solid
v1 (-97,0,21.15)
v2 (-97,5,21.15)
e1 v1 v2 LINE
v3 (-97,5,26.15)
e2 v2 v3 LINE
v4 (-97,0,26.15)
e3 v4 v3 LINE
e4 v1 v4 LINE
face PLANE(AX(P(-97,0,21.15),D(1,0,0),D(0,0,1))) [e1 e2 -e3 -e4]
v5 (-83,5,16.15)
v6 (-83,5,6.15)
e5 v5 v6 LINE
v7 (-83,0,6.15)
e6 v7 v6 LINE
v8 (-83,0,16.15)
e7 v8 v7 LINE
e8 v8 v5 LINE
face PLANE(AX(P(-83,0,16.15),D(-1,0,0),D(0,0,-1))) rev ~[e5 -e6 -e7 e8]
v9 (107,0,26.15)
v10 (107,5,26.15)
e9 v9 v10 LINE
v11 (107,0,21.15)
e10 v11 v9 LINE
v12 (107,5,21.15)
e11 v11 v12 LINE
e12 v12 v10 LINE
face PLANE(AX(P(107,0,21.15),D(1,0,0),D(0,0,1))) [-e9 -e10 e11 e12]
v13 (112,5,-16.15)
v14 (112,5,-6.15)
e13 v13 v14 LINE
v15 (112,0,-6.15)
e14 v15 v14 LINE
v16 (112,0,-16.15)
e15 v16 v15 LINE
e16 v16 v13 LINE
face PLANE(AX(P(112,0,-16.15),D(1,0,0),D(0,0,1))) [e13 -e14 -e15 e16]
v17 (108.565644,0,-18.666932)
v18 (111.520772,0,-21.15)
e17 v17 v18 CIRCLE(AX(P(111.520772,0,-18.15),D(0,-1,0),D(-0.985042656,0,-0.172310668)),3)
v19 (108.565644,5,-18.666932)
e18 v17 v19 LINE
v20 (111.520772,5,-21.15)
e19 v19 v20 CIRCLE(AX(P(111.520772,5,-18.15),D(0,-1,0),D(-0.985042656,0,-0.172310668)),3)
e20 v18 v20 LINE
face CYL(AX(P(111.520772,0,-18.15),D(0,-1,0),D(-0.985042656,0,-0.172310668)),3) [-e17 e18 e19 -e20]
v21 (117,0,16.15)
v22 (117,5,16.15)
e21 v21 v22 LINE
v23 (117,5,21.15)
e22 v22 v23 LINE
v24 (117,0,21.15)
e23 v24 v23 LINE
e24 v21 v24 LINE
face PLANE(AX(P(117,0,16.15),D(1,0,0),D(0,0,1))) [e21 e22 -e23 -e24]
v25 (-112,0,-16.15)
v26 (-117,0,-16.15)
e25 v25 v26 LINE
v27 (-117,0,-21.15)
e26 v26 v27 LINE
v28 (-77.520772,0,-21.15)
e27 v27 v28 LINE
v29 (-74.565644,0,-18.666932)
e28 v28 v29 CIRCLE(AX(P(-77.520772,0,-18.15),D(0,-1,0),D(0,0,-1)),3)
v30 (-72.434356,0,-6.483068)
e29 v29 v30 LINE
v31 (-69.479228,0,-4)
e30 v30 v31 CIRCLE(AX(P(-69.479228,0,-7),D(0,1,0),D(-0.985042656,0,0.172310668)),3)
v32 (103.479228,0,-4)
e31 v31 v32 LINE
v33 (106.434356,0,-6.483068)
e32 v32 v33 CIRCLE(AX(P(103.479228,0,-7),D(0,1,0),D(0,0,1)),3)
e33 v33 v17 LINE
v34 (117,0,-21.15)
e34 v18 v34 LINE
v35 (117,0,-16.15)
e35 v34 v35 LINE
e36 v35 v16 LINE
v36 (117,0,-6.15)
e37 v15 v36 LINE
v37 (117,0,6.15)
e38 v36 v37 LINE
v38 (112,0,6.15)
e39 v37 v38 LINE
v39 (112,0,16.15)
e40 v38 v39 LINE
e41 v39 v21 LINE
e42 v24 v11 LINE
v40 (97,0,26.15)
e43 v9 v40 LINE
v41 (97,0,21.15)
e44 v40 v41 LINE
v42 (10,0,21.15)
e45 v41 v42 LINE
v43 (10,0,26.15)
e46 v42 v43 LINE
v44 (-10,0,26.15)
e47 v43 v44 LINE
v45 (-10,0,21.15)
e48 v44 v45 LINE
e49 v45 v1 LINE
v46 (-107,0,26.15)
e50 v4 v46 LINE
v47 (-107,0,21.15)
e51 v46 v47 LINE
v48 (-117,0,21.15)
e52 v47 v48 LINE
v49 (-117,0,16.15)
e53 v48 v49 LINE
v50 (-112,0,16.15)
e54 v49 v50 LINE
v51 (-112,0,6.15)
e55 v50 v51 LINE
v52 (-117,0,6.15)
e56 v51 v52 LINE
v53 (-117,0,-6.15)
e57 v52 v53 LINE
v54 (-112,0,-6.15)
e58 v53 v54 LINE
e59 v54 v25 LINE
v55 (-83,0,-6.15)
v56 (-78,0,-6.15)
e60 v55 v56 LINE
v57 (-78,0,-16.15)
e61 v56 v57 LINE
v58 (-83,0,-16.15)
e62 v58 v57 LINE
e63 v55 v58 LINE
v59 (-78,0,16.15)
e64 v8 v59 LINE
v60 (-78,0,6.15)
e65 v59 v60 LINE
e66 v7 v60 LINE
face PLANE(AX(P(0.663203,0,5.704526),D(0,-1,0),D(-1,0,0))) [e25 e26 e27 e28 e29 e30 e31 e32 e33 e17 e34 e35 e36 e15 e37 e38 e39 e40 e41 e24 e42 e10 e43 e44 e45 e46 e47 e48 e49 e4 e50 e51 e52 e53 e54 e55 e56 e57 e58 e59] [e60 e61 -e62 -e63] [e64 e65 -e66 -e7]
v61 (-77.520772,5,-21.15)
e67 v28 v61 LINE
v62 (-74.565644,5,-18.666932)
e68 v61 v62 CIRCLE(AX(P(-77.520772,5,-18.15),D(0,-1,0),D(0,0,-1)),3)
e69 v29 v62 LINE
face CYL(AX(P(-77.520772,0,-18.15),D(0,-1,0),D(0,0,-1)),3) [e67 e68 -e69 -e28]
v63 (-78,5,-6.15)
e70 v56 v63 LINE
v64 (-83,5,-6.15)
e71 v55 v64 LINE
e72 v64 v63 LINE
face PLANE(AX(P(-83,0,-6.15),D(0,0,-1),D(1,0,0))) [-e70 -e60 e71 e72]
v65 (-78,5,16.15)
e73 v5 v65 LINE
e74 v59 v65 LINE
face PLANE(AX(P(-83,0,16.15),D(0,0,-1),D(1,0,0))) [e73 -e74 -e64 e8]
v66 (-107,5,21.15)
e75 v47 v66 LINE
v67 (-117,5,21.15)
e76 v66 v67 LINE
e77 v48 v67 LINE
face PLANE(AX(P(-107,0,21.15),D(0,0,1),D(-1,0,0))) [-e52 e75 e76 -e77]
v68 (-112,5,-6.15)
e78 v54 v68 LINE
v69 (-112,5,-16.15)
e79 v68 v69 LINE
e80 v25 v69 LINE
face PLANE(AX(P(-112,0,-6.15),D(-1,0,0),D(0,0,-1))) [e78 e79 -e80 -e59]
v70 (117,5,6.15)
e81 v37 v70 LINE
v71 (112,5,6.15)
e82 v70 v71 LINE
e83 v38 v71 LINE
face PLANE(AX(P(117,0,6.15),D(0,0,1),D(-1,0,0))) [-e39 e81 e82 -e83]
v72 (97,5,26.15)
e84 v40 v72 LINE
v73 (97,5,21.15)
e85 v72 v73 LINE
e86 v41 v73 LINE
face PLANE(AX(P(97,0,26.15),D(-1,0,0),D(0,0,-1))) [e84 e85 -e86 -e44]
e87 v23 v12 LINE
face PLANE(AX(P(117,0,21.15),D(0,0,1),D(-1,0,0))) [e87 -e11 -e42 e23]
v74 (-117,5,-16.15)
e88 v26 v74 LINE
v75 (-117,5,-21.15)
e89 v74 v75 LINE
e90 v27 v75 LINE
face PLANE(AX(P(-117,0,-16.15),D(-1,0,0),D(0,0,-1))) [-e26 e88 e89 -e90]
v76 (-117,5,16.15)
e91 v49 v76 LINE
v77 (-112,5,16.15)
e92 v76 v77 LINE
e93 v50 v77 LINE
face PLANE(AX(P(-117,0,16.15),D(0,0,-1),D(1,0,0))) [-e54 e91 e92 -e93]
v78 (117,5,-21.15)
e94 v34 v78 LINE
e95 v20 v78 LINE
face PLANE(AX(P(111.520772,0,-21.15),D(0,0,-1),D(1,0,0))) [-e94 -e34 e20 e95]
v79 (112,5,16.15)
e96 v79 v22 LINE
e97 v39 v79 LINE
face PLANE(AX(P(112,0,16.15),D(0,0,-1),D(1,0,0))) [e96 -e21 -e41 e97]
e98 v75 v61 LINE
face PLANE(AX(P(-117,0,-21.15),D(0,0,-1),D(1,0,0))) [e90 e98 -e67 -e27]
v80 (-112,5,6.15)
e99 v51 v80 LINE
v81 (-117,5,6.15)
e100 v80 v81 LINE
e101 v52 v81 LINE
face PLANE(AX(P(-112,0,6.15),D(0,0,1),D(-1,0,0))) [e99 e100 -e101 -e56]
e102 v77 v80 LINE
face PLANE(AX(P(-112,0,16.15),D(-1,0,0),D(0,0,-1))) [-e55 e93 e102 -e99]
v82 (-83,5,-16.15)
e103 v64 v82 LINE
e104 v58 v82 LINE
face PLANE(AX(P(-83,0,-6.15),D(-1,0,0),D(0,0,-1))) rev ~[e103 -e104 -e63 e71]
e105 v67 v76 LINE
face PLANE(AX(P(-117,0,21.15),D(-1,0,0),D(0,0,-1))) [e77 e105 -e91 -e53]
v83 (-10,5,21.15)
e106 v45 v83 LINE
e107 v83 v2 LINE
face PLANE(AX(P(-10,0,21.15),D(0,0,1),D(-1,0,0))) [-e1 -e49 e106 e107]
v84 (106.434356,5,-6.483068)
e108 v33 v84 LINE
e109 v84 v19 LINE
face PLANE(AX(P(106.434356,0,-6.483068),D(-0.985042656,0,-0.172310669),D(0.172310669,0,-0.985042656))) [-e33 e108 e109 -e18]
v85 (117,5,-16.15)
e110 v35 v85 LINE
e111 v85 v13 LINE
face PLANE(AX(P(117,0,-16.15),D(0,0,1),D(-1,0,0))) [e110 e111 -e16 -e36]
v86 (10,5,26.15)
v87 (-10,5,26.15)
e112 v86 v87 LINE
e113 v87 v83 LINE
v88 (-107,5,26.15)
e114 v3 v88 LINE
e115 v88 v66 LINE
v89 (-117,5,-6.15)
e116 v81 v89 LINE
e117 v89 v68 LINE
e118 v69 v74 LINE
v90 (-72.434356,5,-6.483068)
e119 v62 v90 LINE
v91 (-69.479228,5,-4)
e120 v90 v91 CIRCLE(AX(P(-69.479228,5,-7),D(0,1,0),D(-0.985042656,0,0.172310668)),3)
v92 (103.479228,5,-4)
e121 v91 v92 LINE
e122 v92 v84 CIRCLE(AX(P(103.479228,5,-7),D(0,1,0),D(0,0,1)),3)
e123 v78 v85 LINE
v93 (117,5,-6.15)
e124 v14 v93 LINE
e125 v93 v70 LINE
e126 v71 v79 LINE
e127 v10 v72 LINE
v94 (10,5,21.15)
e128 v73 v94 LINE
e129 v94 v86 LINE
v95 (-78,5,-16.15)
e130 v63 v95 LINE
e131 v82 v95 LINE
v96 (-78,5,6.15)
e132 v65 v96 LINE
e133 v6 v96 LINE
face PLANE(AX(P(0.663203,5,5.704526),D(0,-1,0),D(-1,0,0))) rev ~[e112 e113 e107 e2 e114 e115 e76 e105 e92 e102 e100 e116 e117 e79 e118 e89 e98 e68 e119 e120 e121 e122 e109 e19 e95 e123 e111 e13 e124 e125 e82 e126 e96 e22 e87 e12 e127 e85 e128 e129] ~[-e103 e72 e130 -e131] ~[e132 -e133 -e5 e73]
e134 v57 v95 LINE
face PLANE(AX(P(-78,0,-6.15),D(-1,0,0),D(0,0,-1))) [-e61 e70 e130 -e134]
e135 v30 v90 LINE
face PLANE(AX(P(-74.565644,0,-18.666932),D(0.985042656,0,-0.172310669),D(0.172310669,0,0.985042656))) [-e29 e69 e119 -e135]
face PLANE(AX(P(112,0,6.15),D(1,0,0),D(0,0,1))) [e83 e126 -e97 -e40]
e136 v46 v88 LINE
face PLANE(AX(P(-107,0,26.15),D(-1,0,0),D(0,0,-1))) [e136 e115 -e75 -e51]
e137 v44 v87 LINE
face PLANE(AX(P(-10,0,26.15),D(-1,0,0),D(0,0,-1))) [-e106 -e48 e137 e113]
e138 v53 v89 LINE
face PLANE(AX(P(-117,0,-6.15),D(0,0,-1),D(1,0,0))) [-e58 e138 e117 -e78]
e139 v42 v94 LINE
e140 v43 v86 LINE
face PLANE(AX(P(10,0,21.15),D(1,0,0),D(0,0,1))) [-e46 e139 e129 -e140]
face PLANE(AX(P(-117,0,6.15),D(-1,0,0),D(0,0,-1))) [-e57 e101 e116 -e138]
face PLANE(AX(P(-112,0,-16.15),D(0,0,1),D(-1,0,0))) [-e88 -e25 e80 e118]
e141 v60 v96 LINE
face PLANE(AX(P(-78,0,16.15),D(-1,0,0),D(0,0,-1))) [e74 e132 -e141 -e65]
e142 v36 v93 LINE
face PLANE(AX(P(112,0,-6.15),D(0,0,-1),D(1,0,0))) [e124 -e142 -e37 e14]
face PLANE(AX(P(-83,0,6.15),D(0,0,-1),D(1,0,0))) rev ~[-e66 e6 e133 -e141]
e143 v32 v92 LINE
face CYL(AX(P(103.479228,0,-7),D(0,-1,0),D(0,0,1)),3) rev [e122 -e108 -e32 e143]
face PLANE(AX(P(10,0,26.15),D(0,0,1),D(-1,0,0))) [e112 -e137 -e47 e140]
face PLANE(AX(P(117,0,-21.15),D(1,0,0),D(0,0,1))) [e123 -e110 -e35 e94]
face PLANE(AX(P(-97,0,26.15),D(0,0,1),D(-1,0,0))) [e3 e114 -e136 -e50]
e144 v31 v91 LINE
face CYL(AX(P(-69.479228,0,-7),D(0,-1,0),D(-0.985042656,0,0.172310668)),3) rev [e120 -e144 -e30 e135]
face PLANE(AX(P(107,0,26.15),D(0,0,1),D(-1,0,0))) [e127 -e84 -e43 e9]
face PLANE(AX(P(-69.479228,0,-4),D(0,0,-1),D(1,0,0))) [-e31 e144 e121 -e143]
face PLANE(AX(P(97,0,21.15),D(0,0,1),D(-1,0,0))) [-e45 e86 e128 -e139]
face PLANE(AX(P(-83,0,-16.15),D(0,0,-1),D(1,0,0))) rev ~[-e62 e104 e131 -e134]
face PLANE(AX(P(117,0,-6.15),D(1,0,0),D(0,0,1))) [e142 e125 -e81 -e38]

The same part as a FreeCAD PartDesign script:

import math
import FreeCAD as App
import Part
import Sketcher
from FreeCAD import Vector

doc = App.newDocument("Part")
params = doc.addObject("Spreadsheet::Sheet", "Params")
for row, (alias, value) in enumerate([
    ("sketch1_radius", "3 mm"),
    ("sketch1_width", "5 mm"),
    ("sketch1_width2", "10 mm"),
    ("sketch1_width3", "87 mm"),
    ("sketch1_width4", "20 mm"),
    ("pad1_length", "5 mm"),
], start=1):
    params.set(f"A{row}", alias)
    params.set(f"B{row}", "=" + value)
    params.setAlias(f"B{row}", alias)

body = doc.addObject("PartDesign::Body", "Body")

# Sketch on XZ plane
sketch1 = body.newObject("Sketcher::SketchObject", "Sketch")
sketch1.AttachmentSupport = (doc.getObject("XZ_Plane"), [""])
sketch1.MapMode = "FlatFace"
sketch1.addGeometry([
    Part.LineSegment(Vector(-77.5, -21.1, 0), Vector(-117, -21.1, 0)),  # 0
    Part.LineSegment(Vector(-117, -21.1, 0), Vector(-117, -16.1, 0)),  # 1
    Part.LineSegment(Vector(-117, -16.1, 0), Vector(-112, -16.1, 0)),  # 2
    Part.LineSegment(Vector(-112, -16.1, 0), Vector(-112, -6.2, 0)),  # 3
    Part.LineSegment(Vector(-112, -6.2, 0), Vector(-117, -6.2, 0)),  # 4
    Part.LineSegment(Vector(-117, -6.2, 0), Vector(-117, 6.2, 0)),  # 5
    Part.LineSegment(Vector(-117, 6.2, 0), Vector(-112, 6.2, 0)),  # 6
    Part.LineSegment(Vector(-112, 6.2, 0), Vector(-112, 16.1, 0)),  # 7
    Part.LineSegment(Vector(-112, 16.1, 0), Vector(-117, 16.1, 0)),  # 8
    Part.LineSegment(Vector(-117, 16.1, 0), Vector(-117, 21.1, 0)),  # 9
    Part.LineSegment(Vector(-117, 21.1, 0), Vector(-107, 21.1, 0)),  # 10
    Part.LineSegment(Vector(-107, 21.1, 0), Vector(-107, 26.1, 0)),  # 11
    Part.LineSegment(Vector(-107, 26.1, 0), Vector(-97, 26.1, 0)),  # 12
    Part.LineSegment(Vector(-97, 26.1, 0), Vector(-97, 21.1, 0)),  # 13
    Part.LineSegment(Vector(-97, 21.1, 0), Vector(-10, 21.1, 0)),  # 14
    Part.LineSegment(Vector(-10, 21.1, 0), Vector(-10, 26.1, 0)),  # 15
    Part.LineSegment(Vector(-10, 26.1, 0), Vector(10, 26.1, 0)),  # 16
    Part.LineSegment(Vector(10, 26.1, 0), Vector(10, 21.1, 0)),  # 17
    Part.LineSegment(Vector(10, 21.1, 0), Vector(97, 21.1, 0)),  # 18
    Part.LineSegment(Vector(97, 21.1, 0), Vector(97, 26.1, 0)),  # 19
    Part.LineSegment(Vector(97, 26.1, 0), Vector(107, 26.1, 0)),  # 20
    Part.LineSegment(Vector(107, 26.1, 0), Vector(107, 21.1, 0)),  # 21
    Part.LineSegment(Vector(107, 21.1, 0), Vector(117, 21.1, 0)),  # 22
    Part.LineSegment(Vector(117, 21.1, 0), Vector(117, 16.1, 0)),  # 23
    Part.LineSegment(Vector(117, 16.1, 0), Vector(112, 16.1, 0)),  # 24
    Part.LineSegment(Vector(112, 16.1, 0), Vector(112, 6.2, 0)),  # 25
    Part.LineSegment(Vector(112, 6.2, 0), Vector(117, 6.2, 0)),  # 26
    Part.LineSegment(Vector(117, 6.2, 0), Vector(117, -6.2, 0)),  # 27
    Part.LineSegment(Vector(117, -6.2, 0), Vector(112, -6.2, 0)),  # 28
    Part.LineSegment(Vector(112, -6.2, 0), Vector(112, -16.1, 0)),  # 29
    Part.LineSegment(Vector(112, -16.1, 0), Vector(117, -16.1, 0)),  # 30
    Part.LineSegment(Vector(117, -16.1, 0), Vector(117, -21.1, 0)),  # 31
    Part.LineSegment(Vector(117, -21.1, 0), Vector(111.5, -21.1, 0)),  # 32
    Part.ArcOfCircle(Part.Circle(Vector(111.5, -18.2, 0), Vector(0, 0, 1), 3), math.radians(-170), math.radians(-90)),  # 33
    Part.LineSegment(Vector(108.6, -18.7, 0), Vector(106.4, -6.5, 0)),  # 34
    Part.ArcOfCircle(Part.Circle(Vector(103.5, -7, 0), Vector(0, 0, 1), 3), math.radians(10), math.radians(90)),  # 35
    Part.LineSegment(Vector(103.5, -4, 0), Vector(-69.5, -4, 0)),  # 36
    Part.ArcOfCircle(Part.Circle(Vector(-69.5, -7, 0), Vector(0, 0, 1), 3), math.radians(90), math.radians(170)),  # 37
    Part.LineSegment(Vector(-72.4, -6.5, 0), Vector(-74.6, -18.7, 0)),  # 38
    Part.ArcOfCircle(Part.Circle(Vector(-77.5, -18.2, 0), Vector(0, 0, 1), 3), math.radians(-90), math.radians(-10)),  # 39
    Part.LineSegment(Vector(-83, 16.1, 0), Vector(-83, 6.2, 0)),  # 40
    Part.LineSegment(Vector(-83, 6.2, 0), Vector(-78, 6.2, 0)),  # 41
    Part.LineSegment(Vector(-78, 6.2, 0), Vector(-78, 16.1, 0)),  # 42
    Part.LineSegment(Vector(-78, 16.1, 0), Vector(-83, 16.1, 0)),  # 43
    Part.LineSegment(Vector(-83, -6.2, 0), Vector(-83, -16.1, 0)),  # 44
    Part.LineSegment(Vector(-83, -16.1, 0), Vector(-78, -16.1, 0)),  # 45
    Part.LineSegment(Vector(-78, -16.1, 0), Vector(-78, -6.2, 0)),  # 46
    Part.LineSegment(Vector(-78, -6.2, 0), Vector(-83, -6.2, 0)),  # 47
], False)
sketch1.addConstraint([
    Sketcher.Constraint("Coincident", 0, 2, 1, 1),
    Sketcher.Constraint("Coincident", 1, 2, 2, 1),
    Sketcher.Constraint("Coincident", 2, 2, 3, 1),
    Sketcher.Constraint("Coincident", 3, 2, 4, 1),
    Sketcher.Constraint("Coincident", 4, 2, 5, 1),
    Sketcher.Constraint("Coincident", 5, 2, 6, 1),
    Sketcher.Constraint("Coincident", 6, 2, 7, 1),
    Sketcher.Constraint("Coincident", 7, 2, 8, 1),
    Sketcher.Constraint("Coincident", 8, 2, 9, 1),
    Sketcher.Constraint("Coincident", 9, 2, 10, 1),
    Sketcher.Constraint("Coincident", 10, 2, 11, 1),
    Sketcher.Constraint("Coincident", 11, 2, 12, 1),
    Sketcher.Constraint("Coincident", 12, 2, 13, 1),
    Sketcher.Constraint("Coincident", 13, 2, 14, 1),
    Sketcher.Constraint("Coincident", 14, 2, 15, 1),
    Sketcher.Constraint("Coincident", 15, 2, 16, 1),
    Sketcher.Constraint("Coincident", 16, 2, 17, 1),
    Sketcher.Constraint("Coincident", 17, 2, 18, 1),
    Sketcher.Constraint("Coincident", 18, 2, 19, 1),
    Sketcher.Constraint("Coincident", 19, 2, 20, 1),
    Sketcher.Constraint("Coincident", 20, 2, 21, 1),
    Sketcher.Constraint("Coincident", 21, 2, 22, 1),
    Sketcher.Constraint("Coincident", 22, 2, 23, 1),
    Sketcher.Constraint("Coincident", 23, 2, 24, 1),
    Sketcher.Constraint("Coincident", 24, 2, 25, 1),
    Sketcher.Constraint("Coincident", 25, 2, 26, 1),
    Sketcher.Constraint("Coincident", 26, 2, 27, 1),
    Sketcher.Constraint("Coincident", 27, 2, 28, 1),
    Sketcher.Constraint("Coincident", 28, 2, 29, 1),
    Sketcher.Constraint("Coincident", 29, 2, 30, 1),
    Sketcher.Constraint("Coincident", 30, 2, 31, 1),
    Sketcher.Constraint("Coincident", 31, 2, 32, 1),
    Sketcher.Constraint("Tangent", 32, 2, 33, 2),
    Sketcher.Constraint("Tangent", 33, 1, 34, 1),
    Sketcher.Constraint("Tangent", 34, 2, 35, 1),
    Sketcher.Constraint("Tangent", 35, 2, 36, 1),
    Sketcher.Constraint("Tangent", 36, 2, 37, 1),
    Sketcher.Constraint("Tangent", 37, 2, 38, 1),
    Sketcher.Constraint("Tangent", 38, 2, 39, 2),
    Sketcher.Constraint("Tangent", 39, 1, 0, 1),
    Sketcher.Constraint("Coincident", 40, 2, 41, 1),
    Sketcher.Constraint("Coincident", 41, 2, 42, 1),
    Sketcher.Constraint("Coincident", 42, 2, 43, 1),
    Sketcher.Constraint("Coincident", 43, 2, 40, 1),
    Sketcher.Constraint("Coincident", 44, 2, 45, 1),
    Sketcher.Constraint("Coincident", 45, 2, 46, 1),
    Sketcher.Constraint("Coincident", 46, 2, 47, 1),
    Sketcher.Constraint("Coincident", 47, 2, 44, 1),
    Sketcher.Constraint("Horizontal", 0),
    Sketcher.Constraint("Vertical", 1),
    Sketcher.Constraint("Horizontal", 2),
    Sketcher.Constraint("Vertical", 3),
    Sketcher.Constraint("Horizontal", 4),
    Sketcher.Constraint("Vertical", 5),
    Sketcher.Constraint("Horizontal", 6),
    Sketcher.Constraint("Vertical", 7),
    Sketcher.Constraint("Horizontal", 8),
    Sketcher.Constraint("Vertical", 9),
    Sketcher.Constraint("Horizontal", 10),
    Sketcher.Constraint("Vertical", 11),
    Sketcher.Constraint("Horizontal", 12),
    Sketcher.Constraint("Vertical", 13),
    Sketcher.Constraint("Horizontal", 14),
    Sketcher.Constraint("Vertical", 15),
    Sketcher.Constraint("Horizontal", 16),
    Sketcher.Constraint("Vertical", 17),
    Sketcher.Constraint("Horizontal", 18),
    Sketcher.Constraint("Vertical", 19),
    Sketcher.Constraint("Horizontal", 20),
    Sketcher.Constraint("Vertical", 21),
    Sketcher.Constraint("Horizontal", 22),
    Sketcher.Constraint("Vertical", 23),
    Sketcher.Constraint("Horizontal", 24),
    Sketcher.Constraint("Vertical", 25),
    Sketcher.Constraint("Horizontal", 26),
    Sketcher.Constraint("Vertical", 27),
    Sketcher.Constraint("Horizontal", 28),
    Sketcher.Constraint("Vertical", 29),
    Sketcher.Constraint("Horizontal", 30),
    Sketcher.Constraint("Vertical", 31),
    Sketcher.Constraint("Horizontal", 32),
    Sketcher.Constraint("Horizontal", 36),
    Sketcher.Constraint("Vertical", 40),
    Sketcher.Constraint("Horizontal", 41),
    Sketcher.Constraint("Vertical", 42),
    Sketcher.Constraint("Horizontal", 43),
    Sketcher.Constraint("Vertical", 44),
    Sketcher.Constraint("Horizontal", 45),
    Sketcher.Constraint("Vertical", 46),
    Sketcher.Constraint("Horizontal", 47),
    Sketcher.Constraint("Equal", 33, 35),
    Sketcher.Constraint("Equal", 35, 37),
    Sketcher.Constraint("Equal", 37, 39),
    Sketcher.Constraint("Symmetric", 0, 2, 22, 2, -1, 1),
    Sketcher.Constraint("Symmetric", 2, 2, 24, 2, -1, 1),
    Sketcher.Constraint("Symmetric", 4, 2, 26, 2, -1, 1),
    Sketcher.Constraint("Symmetric", 6, 2, 28, 2, -1, 1),
    Sketcher.Constraint("Symmetric", 8, 2, 30, 2, -1, 1),
    Sketcher.Constraint("Symmetric", 14, 2, 17, 2, -2),
    Sketcher.Constraint("Symmetric", 12, 2, 19, 2, -2),
    Sketcher.Constraint("Symmetric", 10, 2, 21, 2, -2),
    Sketcher.Constraint("Symmetric", 8, 2, 23, 2, -2),
    Sketcher.Constraint("Symmetric", 6, 2, 25, 2, -2),
    Sketcher.Constraint("Symmetric", 43, 2, 44, 2, -1),
    Sketcher.Constraint("Symmetric", 41, 2, 46, 2, -1),
    Sketcher.Constraint("Horizontal", 33, 3, 39, 3),
    Sketcher.Constraint("Horizontal", 10, 2, 13, 2),
    Sketcher.Constraint("Horizontal", 12, 2, 15, 2),
    Sketcher.Constraint("Horizontal", 34, 2, 37, 2),
    Sketcher.Constraint("Horizontal", 26, 2, 40, 2),
    Sketcher.Constraint("Horizontal", 24, 2, 42, 2),
    Sketcher.Constraint("Vertical", 1, 2, 4, 2),
    Sketcher.Constraint("Equal", 10, 12),
    Sketcher.Constraint("Equal", 30, 41),
    Sketcher.Constraint("Equal", 47, 1),
    Sketcher.Constraint("Equal", 22, 3),
    Sketcher.Constraint("Equal", 9, 11),
    Sketcher.Constraint("Radius", 33, 3.0),
    Sketcher.Constraint("DistanceX", 2, 1, 2, 2, 5.0),
    Sketcher.Constraint("DistanceX", 10, 1, 10, 2, 10.0),
    Sketcher.Constraint("DistanceX", 14, 1, 14, 2, 87.0),
    Sketcher.Constraint("DistanceX", 16, 1, 16, 2, 20.0),
    Sketcher.Constraint("DistanceY", 5, 1, 5, 2, 12.3),
    Sketcher.Constraint("DistanceY", 35, 3, -1, 1, 7.0),
    Sketcher.Constraint("DistanceX", 40, 2, -1, 1, 83.0),
    Sketcher.Constraint("DistanceX", 37, 3, 33, 3, 181.0),
    Sketcher.Constraint("Distance", 34, 12.368869),
    Sketcher.Constraint("DistanceX", 0, 2, 0, 1, 39.479228),
])
sketch1.setExpression("Constraints[117]", "Params.sketch1_radius")
sketch1.setExpression("Constraints[118]", "Params.sketch1_width")
sketch1.setExpression("Constraints[119]", "Params.sketch1_width2")
sketch1.setExpression("Constraints[120]", "Params.sketch1_width3")
sketch1.setExpression("Constraints[121]", "Params.sketch1_width4")
pad1 = body.newObject("PartDesign::Pad", "Pad")
pad1.Profile = sketch1
pad1.setExpression("Length", "Params.pad1_length")
pad1.Reversed = True

doc.recompute()
